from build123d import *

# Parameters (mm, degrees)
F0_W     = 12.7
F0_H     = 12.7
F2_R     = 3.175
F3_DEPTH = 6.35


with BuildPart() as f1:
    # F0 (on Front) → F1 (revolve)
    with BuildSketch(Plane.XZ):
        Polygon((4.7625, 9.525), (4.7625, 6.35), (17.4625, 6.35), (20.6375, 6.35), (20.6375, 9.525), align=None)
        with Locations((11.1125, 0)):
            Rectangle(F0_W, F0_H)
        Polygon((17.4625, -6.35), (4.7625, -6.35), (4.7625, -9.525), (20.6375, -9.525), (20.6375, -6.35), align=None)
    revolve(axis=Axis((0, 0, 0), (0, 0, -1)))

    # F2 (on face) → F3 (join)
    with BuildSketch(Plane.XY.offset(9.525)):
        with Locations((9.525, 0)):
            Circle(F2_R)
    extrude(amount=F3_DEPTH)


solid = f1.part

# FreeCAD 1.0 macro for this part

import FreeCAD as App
import Part
import Sketcher

V = App.Vector
Q = App.Units.Quantity

doc = App.newDocument("Part")
params = doc.addObject("Spreadsheet::Sheet", "Params")
for row, (alias, value) in enumerate([
    ("sketch1_height", "0.5 in"),
    ("sketch1_height2", "0.75 in"),
    ("revolution_angle", "360 deg"),
    ("sketch2_diameter", "0.25 in"),
    ("pad1_length", "0.25 in"),
], start=1):
    params.set(f"A{row}", alias)
    params.set(f"B{row}", "=" + value)
    params.setAlias(f"B{row}", alias)

body = doc.addObject("PartDesign::Body", "Body")

sketch1 = body.newObject("Sketcher::SketchObject", "Sketch")
sketch1.AttachmentSupport = (doc.getObject("XZ_Plane"), [""])
sketch1.MapMode = "FlatFace"
sketch1.addGeometry([
    Part.LineSegment(V(4.8, 9.5, 0), V(4.8, -9.5, 0)),
    Part.LineSegment(V(4.8, -9.5, 0), V(20.6, -9.5, 0)),
    Part.LineSegment(V(20.6, -9.5, 0), V(20.6, -6.3, 0)),
    Part.LineSegment(V(20.6, -6.3, 0), V(17.5, -6.3, 0)),
    Part.LineSegment(V(17.5, -6.3, 0), V(17.5, 6.3, 0)),
    Part.LineSegment(V(17.5, 6.3, 0), V(20.6, 6.3, 0)),
    Part.LineSegment(V(20.6, 6.3, 0), V(20.6, 9.5, 0)),
    Part.LineSegment(V(20.6, 9.5, 0), V(4.8, 9.5, 0)),
], False)
sketch1.addConstraint([
    Sketcher.Constraint("Coincident", 0, 2, 1, 1),
    Sketcher.Constraint("Coincident", 1, 2, 2, 1),
    Sketcher.Constraint("Coincident", 2, 2, 3, 1),
    Sketcher.Constraint("Coincident", 3, 2, 4, 1),
    Sketcher.Constraint("Coincident", 4, 2, 5, 1),
    Sketcher.Constraint("Coincident", 5, 2, 6, 1),
    Sketcher.Constraint("Coincident", 6, 2, 7, 1),
    Sketcher.Constraint("Coincident", 7, 2, 0, 1),
    Sketcher.Constraint("Vertical", 0),
    Sketcher.Constraint("Horizontal", 1),
    Sketcher.Constraint("Vertical", 2),
    Sketcher.Constraint("Horizontal", 3),
    Sketcher.Constraint("Vertical", 4),
    Sketcher.Constraint("Horizontal", 5),
    Sketcher.Constraint("Vertical", 6),
    Sketcher.Constraint("Horizontal", 7),
    Sketcher.Constraint("Symmetric", 2, 2, 5, 2, -1),
    Sketcher.Constraint("Equal", 5, 2),
    Sketcher.Constraint("Equal", 2, 6),
    Sketcher.Constraint("DistanceY", 4, 1, 4, 2, Q("0.5 in")),
    Sketcher.Constraint("DistanceY", 0, 2, 0, 1, Q("0.75 in")),
    Sketcher.Constraint("DistanceX", 0, 2, 3, 2, Q("0.5 in")),
    Sketcher.Constraint("DistanceX", -1, 1, 0, 2, Q("0.1875 in")),
])
sketch1.setExpression("Constraints[19]", "Params.sketch1_height")
sketch1.setExpression("Constraints[20]", "Params.sketch1_height2")
revolution = body.newObject("PartDesign::Revolution", "Revolution")
revolution.Profile = sketch1
revolution.ReferenceAxis = (sketch1, ["V_Axis"])
revolution.setExpression("Angle", "Params.revolution_angle")

sketch2 = body.newObject("Sketcher::SketchObject", "Sketch001")
sketch2.AttachmentSupport = (doc.getObject("XY_Plane"), [""])
sketch2.MapMode = "FlatFace"
sketch2.AttachmentOffset = App.Placement(V(0, 0, 0.375 * 25.4), App.Rotation())
sketch2.addGeometry(Part.Circle(V(9.5, 0, 0), V(0, 0, 1), 3.2), False)
sketch2.addConstraint([
    Sketcher.Constraint("PointOnObject", 0, 3, -1),
    Sketcher.Constraint("Diameter", 0, Q("0.25 in")),
    Sketcher.Constraint("DistanceX", -1, 1, 0, 3, Q("0.375 in")),
])
sketch2.setExpression("Constraints[1]", "Params.sketch2_diameter")
pad1 = body.newObject("PartDesign::Pad", "Pad")
pad1.Profile = sketch2
pad1.setExpression("Length", "Params.pad1_length")

doc.recompute()
